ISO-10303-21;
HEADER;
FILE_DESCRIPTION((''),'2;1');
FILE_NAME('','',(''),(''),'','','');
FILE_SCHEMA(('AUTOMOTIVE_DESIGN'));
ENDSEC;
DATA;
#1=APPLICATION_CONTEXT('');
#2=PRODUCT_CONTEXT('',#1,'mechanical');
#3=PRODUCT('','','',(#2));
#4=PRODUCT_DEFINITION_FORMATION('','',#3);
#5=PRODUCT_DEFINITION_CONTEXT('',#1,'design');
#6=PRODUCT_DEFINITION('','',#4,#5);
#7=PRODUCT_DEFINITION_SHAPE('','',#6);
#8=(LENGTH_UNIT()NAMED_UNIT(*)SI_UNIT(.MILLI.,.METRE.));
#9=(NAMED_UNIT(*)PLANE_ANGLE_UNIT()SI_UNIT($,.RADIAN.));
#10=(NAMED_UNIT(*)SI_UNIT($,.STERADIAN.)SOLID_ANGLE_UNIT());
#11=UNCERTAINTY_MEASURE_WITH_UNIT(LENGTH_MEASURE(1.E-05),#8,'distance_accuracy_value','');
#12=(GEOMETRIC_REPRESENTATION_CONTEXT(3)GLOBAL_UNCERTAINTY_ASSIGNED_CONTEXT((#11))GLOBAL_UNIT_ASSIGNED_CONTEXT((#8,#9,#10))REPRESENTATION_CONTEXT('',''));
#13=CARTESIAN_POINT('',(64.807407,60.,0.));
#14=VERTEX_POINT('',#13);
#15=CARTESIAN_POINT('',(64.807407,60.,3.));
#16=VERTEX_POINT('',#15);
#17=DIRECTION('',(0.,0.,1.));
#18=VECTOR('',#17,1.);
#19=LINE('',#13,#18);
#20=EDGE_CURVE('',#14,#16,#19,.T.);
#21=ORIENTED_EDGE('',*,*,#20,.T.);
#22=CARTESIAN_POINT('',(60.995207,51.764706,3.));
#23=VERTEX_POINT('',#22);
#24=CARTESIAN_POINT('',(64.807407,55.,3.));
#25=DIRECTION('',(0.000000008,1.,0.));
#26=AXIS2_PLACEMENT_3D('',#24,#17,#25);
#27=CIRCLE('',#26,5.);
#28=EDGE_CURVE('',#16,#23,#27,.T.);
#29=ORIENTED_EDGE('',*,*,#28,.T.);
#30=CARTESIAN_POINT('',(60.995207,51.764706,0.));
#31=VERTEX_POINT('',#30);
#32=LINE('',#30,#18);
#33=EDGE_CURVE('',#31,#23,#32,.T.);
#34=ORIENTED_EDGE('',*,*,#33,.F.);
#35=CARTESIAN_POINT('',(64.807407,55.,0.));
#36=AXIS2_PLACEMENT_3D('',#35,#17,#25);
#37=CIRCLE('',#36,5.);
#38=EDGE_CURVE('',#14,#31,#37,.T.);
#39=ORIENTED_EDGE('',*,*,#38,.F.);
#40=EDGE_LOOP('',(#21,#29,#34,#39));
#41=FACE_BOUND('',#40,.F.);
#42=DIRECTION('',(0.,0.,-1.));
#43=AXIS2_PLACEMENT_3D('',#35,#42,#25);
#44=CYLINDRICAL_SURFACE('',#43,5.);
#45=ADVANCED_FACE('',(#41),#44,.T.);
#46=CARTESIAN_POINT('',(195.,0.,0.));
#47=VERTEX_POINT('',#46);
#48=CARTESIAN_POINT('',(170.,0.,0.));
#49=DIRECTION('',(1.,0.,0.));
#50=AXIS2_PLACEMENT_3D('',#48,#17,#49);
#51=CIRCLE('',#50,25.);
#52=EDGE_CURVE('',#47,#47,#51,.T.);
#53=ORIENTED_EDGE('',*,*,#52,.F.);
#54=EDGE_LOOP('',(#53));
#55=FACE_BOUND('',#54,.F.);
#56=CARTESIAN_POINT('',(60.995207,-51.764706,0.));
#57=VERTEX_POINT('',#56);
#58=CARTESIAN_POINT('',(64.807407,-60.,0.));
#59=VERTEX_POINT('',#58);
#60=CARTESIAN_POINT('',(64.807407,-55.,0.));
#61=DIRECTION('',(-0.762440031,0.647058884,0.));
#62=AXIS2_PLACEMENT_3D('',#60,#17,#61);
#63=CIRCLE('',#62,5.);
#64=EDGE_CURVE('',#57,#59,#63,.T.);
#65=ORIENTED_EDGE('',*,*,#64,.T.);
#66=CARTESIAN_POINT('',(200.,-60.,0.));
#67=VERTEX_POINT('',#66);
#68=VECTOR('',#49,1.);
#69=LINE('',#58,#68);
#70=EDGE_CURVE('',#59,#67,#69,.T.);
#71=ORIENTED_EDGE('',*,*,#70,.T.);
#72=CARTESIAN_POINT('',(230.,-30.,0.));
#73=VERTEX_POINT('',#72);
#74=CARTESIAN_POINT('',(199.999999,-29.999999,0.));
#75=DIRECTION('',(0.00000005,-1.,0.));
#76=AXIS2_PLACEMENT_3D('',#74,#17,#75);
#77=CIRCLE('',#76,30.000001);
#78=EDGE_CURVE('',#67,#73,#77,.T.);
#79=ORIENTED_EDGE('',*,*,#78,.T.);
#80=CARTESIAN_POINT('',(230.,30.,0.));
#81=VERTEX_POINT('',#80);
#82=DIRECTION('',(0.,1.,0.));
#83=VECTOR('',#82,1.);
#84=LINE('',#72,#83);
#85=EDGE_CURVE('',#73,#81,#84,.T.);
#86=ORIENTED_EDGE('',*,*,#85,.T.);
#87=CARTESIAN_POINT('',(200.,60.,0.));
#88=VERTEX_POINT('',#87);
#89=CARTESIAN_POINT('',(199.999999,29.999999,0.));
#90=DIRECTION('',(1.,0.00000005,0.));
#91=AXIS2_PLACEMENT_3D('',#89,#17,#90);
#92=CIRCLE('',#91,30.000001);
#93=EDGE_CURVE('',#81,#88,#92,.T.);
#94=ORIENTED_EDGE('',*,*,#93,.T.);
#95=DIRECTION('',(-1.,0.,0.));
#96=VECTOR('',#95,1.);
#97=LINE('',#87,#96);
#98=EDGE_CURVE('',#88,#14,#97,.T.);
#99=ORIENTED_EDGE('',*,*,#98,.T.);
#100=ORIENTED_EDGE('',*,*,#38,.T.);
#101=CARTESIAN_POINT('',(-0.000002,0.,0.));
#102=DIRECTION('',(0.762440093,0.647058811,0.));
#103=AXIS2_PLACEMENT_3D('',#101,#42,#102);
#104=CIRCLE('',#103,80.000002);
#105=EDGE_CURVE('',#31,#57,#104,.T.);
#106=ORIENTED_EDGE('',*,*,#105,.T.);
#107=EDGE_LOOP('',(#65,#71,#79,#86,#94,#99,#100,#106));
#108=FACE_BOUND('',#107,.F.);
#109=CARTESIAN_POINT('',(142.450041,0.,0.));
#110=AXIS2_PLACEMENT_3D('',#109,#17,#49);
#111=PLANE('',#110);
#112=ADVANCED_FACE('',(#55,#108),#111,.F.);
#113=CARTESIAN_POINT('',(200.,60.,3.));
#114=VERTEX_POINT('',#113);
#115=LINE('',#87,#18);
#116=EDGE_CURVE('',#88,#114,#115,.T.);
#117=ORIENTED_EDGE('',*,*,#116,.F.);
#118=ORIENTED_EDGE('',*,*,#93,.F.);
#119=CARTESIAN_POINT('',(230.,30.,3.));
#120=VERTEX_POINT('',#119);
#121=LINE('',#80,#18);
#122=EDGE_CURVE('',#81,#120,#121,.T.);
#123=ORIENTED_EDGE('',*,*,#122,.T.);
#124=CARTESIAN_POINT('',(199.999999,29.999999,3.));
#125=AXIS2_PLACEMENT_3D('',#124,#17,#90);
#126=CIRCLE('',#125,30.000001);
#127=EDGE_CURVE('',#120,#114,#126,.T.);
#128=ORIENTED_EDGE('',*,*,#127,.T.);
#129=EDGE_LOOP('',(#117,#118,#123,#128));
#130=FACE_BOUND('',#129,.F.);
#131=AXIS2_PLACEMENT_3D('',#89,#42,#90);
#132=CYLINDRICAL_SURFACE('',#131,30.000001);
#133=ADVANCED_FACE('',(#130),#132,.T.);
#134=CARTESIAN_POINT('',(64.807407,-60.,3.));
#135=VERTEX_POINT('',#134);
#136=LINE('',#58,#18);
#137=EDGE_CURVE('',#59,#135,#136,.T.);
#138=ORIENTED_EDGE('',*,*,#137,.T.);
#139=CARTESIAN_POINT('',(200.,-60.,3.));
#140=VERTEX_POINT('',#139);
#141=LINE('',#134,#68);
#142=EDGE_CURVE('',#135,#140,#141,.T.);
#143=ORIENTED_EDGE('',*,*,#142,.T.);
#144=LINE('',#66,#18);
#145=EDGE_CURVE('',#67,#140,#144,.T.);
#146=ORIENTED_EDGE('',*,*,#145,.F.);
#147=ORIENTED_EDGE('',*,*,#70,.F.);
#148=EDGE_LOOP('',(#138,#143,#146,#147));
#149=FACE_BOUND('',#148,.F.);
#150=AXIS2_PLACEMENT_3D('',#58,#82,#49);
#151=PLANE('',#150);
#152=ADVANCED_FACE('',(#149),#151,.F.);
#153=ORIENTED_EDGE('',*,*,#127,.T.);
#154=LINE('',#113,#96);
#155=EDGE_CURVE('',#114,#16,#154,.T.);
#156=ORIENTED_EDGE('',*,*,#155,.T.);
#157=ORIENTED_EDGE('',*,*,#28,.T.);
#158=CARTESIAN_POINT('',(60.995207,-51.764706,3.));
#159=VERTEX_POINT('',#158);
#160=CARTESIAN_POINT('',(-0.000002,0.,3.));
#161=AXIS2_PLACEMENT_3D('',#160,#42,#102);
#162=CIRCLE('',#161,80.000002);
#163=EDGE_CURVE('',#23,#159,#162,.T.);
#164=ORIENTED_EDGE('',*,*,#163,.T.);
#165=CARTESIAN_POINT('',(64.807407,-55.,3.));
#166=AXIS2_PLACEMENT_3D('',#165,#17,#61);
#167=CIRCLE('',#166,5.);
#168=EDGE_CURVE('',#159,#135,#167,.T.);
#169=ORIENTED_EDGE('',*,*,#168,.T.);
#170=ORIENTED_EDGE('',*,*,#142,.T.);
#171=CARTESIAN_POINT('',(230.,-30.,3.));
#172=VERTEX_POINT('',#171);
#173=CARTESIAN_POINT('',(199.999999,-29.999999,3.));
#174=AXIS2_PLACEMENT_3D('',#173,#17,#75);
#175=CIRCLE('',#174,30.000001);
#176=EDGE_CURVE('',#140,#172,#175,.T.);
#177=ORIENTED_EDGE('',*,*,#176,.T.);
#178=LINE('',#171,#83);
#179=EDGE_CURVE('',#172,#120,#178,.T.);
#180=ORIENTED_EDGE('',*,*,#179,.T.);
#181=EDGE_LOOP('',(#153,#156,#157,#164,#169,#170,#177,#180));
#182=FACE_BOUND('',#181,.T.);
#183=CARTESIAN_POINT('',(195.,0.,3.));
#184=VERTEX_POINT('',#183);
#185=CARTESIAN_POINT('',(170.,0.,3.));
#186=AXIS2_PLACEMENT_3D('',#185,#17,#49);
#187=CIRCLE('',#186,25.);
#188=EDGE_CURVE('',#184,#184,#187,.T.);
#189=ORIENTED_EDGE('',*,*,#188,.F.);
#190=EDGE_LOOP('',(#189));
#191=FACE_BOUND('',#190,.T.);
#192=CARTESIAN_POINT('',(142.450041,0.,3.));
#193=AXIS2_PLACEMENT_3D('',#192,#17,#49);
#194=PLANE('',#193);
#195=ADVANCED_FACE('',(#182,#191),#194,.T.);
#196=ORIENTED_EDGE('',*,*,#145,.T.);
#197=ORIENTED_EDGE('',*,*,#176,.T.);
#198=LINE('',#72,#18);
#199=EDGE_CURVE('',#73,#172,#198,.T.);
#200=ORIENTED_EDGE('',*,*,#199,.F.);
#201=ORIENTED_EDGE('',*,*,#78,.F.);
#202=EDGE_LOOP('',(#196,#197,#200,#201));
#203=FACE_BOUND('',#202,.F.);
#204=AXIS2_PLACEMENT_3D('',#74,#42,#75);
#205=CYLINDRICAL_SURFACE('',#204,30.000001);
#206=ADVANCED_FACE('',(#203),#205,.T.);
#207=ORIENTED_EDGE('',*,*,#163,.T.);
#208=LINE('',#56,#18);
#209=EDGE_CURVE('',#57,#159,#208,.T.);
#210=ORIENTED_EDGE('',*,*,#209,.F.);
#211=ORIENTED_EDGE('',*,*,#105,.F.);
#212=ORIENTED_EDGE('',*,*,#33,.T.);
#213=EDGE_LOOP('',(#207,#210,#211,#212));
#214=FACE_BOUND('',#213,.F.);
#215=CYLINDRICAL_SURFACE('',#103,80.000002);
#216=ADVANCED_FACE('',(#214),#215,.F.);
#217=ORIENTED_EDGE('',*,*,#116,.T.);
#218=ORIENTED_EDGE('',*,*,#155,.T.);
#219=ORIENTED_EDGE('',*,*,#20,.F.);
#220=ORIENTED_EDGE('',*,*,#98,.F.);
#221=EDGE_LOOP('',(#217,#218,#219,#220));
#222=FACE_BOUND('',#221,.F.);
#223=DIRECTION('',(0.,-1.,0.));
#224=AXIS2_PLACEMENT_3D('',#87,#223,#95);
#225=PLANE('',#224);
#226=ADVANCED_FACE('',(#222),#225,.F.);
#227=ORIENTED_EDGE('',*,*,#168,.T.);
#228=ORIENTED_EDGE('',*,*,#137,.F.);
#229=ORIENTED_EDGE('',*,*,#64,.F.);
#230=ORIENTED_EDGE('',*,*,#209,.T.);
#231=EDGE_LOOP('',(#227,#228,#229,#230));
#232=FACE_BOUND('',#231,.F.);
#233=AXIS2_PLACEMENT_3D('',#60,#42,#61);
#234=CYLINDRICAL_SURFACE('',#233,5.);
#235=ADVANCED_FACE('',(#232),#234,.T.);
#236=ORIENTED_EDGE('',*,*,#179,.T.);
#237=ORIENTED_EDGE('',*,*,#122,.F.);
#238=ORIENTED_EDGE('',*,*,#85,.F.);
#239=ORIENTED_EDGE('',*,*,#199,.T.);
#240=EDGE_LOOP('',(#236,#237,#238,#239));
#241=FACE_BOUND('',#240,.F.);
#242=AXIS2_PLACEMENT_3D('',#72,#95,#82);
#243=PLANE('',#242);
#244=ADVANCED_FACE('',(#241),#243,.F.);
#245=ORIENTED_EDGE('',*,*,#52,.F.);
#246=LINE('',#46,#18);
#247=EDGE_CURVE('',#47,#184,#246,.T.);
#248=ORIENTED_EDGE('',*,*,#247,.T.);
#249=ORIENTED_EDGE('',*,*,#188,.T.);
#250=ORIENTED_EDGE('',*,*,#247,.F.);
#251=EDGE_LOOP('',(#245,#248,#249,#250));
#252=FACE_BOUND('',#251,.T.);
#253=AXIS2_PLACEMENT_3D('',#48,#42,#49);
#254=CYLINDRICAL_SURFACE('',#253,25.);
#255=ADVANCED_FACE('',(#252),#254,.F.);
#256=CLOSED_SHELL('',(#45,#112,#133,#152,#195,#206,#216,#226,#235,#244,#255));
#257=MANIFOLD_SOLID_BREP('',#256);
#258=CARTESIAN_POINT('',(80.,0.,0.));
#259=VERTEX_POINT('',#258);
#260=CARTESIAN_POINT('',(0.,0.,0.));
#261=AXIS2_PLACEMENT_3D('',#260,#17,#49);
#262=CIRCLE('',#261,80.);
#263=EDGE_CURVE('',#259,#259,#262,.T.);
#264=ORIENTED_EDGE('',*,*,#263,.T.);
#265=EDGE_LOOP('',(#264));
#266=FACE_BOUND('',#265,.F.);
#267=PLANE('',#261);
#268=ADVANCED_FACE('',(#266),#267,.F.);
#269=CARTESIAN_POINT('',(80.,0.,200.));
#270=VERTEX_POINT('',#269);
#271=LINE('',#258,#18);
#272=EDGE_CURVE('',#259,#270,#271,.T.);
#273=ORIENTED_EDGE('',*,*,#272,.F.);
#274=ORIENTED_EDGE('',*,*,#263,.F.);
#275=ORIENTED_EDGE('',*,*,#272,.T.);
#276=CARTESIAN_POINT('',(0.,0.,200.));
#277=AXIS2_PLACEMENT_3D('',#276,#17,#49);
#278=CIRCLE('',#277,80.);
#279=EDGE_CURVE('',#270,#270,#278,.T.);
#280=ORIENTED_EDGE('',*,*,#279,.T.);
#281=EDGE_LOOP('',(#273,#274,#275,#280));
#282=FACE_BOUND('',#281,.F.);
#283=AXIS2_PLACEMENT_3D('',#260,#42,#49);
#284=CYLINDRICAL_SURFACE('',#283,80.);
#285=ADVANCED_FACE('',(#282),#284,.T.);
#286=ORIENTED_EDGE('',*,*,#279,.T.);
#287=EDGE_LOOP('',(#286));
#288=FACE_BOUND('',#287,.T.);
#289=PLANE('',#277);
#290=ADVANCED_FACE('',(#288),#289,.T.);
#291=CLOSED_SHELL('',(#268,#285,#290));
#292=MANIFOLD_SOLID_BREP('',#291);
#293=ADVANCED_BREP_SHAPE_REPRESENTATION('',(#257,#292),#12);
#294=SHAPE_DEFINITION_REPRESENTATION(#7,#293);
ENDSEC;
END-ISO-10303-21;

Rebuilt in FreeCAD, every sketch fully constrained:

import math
import FreeCAD as App
import Part
import Sketcher
Q = App.Units.Quantity

doc = App.newDocument("Part")
body = doc.addObject("PartDesign::Body", "Body")

sketch1 = body.newObject("Sketcher::SketchObject", "Sketch")
sketch1.AttachmentSupport = (doc.getObject("XY_Plane"), [""])
sketch1.MapMode = "FlatFace"
sketch1.addGeometry(Part.Circle(App.Vector(0, 0, 0), App.Vector(0, 0, 1), 80), False)
sketch1.addConstraint(Sketcher.Constraint("Coincident", 0, 3, -1, 1))
sketch1.addConstraint(Sketcher.Constraint("Diameter", 0, Q("160 mm")))
pad1 = body.newObject("PartDesign::Pad", "Pad")
pad1.Profile = sketch1
pad1.Length = 200
body2 = doc.addObject("PartDesign::Body", "Body001")

sketch2 = body2.newObject("Sketcher::SketchObject", "Sketch001")
sketch2.AttachmentSupport = (doc.getObject("XY_Plane001"), [""])
sketch2.MapMode = "FlatFace"
sketch2.addGeometry(Part.LineSegment(App.Vector(200, 60, 0), App.Vector(64.8, 60, 0)), False)
sketch2.addGeometry(Part.ArcOfCircle(Part.Circle(App.Vector(64.8, 55, 0), App.Vector(0, 0, 1), 5), math.radians(90), math.radians(220)), False)
sketch2.addGeometry(Part.ArcOfCircle(Part.Circle(App.Vector(0, 0, 0), App.Vector(0, 0, 1), 80), math.radians(-40), math.radians(40)), False)
sketch2.addGeometry(Part.ArcOfCircle(Part.Circle(App.Vector(64.8, -55, 0), App.Vector(0, 0, 1), 5), math.radians(140), math.radians(270)), False)
sketch2.addGeometry(Part.LineSegment(App.Vector(64.8, -60, 0), App.Vector(200, -60, 0)), False)
sketch2.addGeometry(Part.ArcOfCircle(Part.Circle(App.Vector(200, -30, 0), App.Vector(0, 0, 1), 30), math.radians(-90), math.radians(0)), False)
sketch2.addGeometry(Part.LineSegment(App.Vector(230, -30, 0), App.Vector(230, 30, 0)), False)
sketch2.addGeometry(Part.ArcOfCircle(Part.Circle(App.Vector(200, 30, 0), App.Vector(0, 0, 1), 30), math.radians(0), math.radians(90)), False)
sketch2.addGeometry(Part.Circle(App.Vector(170, 0, 0), App.Vector(0, 0, 1), 25), False)
sketch2.addConstraint(Sketcher.Constraint("Tangent", 0, 2, 1, 1))
sketch2.addConstraint(Sketcher.Constraint("Tangent", 1, 2, 2, 2))
sketch2.addConstraint(Sketcher.Constraint("Tangent", 2, 1, 3, 1))
sketch2.addConstraint(Sketcher.Constraint("Tangent", 3, 2, 4, 1))
sketch2.addConstraint(Sketcher.Constraint("Tangent", 4, 2, 5, 1))
sketch2.addConstraint(Sketcher.Constraint("Tangent", 5, 2, 6, 1))
sketch2.addConstraint(Sketcher.Constraint("Tangent", 6, 2, 7, 1))
sketch2.addConstraint(Sketcher.Constraint("Tangent", 7, 2, 0, 1))
sketch2.addConstraint(Sketcher.Constraint("Horizontal", 0))
sketch2.addConstraint(Sketcher.Constraint("Horizontal", 4))
sketch2.addConstraint(Sketcher.Constraint("Vertical", 6))
sketch2.addConstraint(Sketcher.Constraint("Coincident", 2, 3, -1, 1))
sketch2.addConstraint(Sketcher.Constraint("Equal", 1, 3))
sketch2.addConstraint(Sketcher.Constraint("Equal", 5, 7))
sketch2.addConstraint(Sketcher.Constraint("PointOnObject", 8, 3, -1))
sketch2.addConstraint(Sketcher.Constraint("Vertical", 1, 3, 3, 3))
sketch2.addConstraint(Sketcher.Constraint("Diameter", 8, Q("50 mm")))
sketch2.addConstraint(Sketcher.Constraint("Radius", 1, Q("5 mm")))
sketch2.addConstraint(Sketcher.Constraint("Radius", 2, Q("80.000002 mm")))
sketch2.addConstraint(Sketcher.Constraint("Radius", 5, Q("30.000001 mm")))
sketch2.addConstraint(Sketcher.Constraint("DistanceY", 6, 1, 6, 2, Q("60 mm")))
sketch2.addConstraint(Sketcher.Constraint("DistanceX", -1, 1, 5, 3, Q("199.999999 mm")))
sketch2.addConstraint(Sketcher.Constraint("DistanceX", -1, 1, 8, 3, Q("170 mm")))
pad2 = body2.newObject("PartDesign::Pad", "Pad001")
pad2.Profile = sketch2
pad2.Length = 3

doc.recompute()
